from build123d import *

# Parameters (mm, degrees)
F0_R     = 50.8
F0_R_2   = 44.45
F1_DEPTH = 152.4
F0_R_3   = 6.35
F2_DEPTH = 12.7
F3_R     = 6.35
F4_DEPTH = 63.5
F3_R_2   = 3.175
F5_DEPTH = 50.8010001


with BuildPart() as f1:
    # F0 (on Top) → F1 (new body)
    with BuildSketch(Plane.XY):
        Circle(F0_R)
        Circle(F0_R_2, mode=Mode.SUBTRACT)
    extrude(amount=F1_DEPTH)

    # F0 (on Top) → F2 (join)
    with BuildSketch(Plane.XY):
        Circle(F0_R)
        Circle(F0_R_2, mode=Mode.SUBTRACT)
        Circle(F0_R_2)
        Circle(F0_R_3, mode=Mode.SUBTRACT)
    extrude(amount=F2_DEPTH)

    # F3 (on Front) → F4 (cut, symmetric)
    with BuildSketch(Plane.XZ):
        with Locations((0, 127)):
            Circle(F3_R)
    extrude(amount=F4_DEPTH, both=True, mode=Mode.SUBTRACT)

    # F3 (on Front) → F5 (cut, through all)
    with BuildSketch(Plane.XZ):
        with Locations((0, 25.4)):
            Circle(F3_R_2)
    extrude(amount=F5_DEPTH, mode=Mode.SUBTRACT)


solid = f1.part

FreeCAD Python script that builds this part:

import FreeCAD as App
import Part
import Sketcher

V = App.Vector
Q = App.Units.Quantity

doc = App.newDocument("Part")
body = doc.addObject("PartDesign::Body", "Body")

# Sketch on XY plane
sketch1 = body.newObject("Sketcher::SketchObject", "Sketch")
sketch1.AttachmentSupport = (doc.getObject("XY_Plane"), [""])
sketch1.MapMode = "FlatFace"
sketch1.addGeometry([
    Part.Circle(V(0, 0, 0), V(0, 0, 1), 50.8),
    Part.Circle(V(0, 0, 0), V(0, 0, 1), 44.45),
], False)
sketch1.addConstraint([
    Sketcher.Constraint("Coincident", 0, 3, -1, 1),
    Sketcher.Constraint("Coincident", 1, 3, -1, 1),
    Sketcher.Constraint("Diameter", 0, Q("4 in")),
    Sketcher.Constraint("Diameter", 1, Q("3.5 in")),
])
pad1 = body.newObject("PartDesign::Pad", "Pad")
pad1.Profile = sketch1
pad1.Length = Q("6 in")

# Sketch on XY plane
sketch2 = body.newObject("Sketcher::SketchObject", "Sketch001")
sketch2.AttachmentSupport = (doc.getObject("XY_Plane"), [""])
sketch2.MapMode = "FlatFace"
sketch2.addGeometry([
    Part.Circle(V(0, 0, 0), V(0, 0, 1), 50.8),
    Part.Circle(V(0, 0, 0), V(0, 0, 1), 6.35),
], False)
sketch2.addConstraint([
    Sketcher.Constraint("Coincident", 0, 3, -1, 1),
    Sketcher.Constraint("Coincident", 1, 3, -1, 1),
    Sketcher.Constraint("Diameter", 0, Q("4 in")),
    Sketcher.Constraint("Diameter", 1, Q("0.5 in")),
])
pad2 = body.newObject("PartDesign::Pad", "Pad001")
pad2.Profile = sketch2
pad2.Length = Q("0.5 in")

# Sketch on XZ plane
sketch3 = body.newObject("Sketcher::SketchObject", "Sketch002")
sketch3.AttachmentSupport = (doc.getObject("XZ_Plane"), [""])
sketch3.MapMode = "FlatFace"
sketch3.addGeometry(Part.Circle(V(0, 127, 0), V(0, 0, 1), 6.35), False)
sketch3.addConstraint([
    Sketcher.Constraint("PointOnObject", 0, 3, -2),
    Sketcher.Constraint("Diameter", 0, Q("0.5 in")),
    Sketcher.Constraint("DistanceY", -1, 1, 0, 3, Q("5 in")),
])
pocket1 = body.newObject("PartDesign::Pocket", "Pocket")
pocket1.Profile = sketch3
pocket1.Length = Q("5 in")
pocket1.Midplane = True

# Sketch on XZ plane
sketch4 = body.newObject("Sketcher::SketchObject", "Sketch003")
sketch4.AttachmentSupport = (doc.getObject("XZ_Plane"), [""])
sketch4.MapMode = "FlatFace"
sketch4.addGeometry(Part.Circle(V(0, 25.4, 0), V(0, 0, 1), 3.175), False)
sketch4.addConstraint([
    Sketcher.Constraint("PointOnObject", 0, 3, -2),
    Sketcher.Constraint("Diameter", 0, Q("0.25 in")),
    Sketcher.Constraint("DistanceY", -1, 1, 0, 3, Q("1 in")),
])
pocket2 = body.newObject("PartDesign::Pocket", "Pocket001")
pocket2.Profile = sketch4
pocket2.Type = "ThroughAll"
pocket2.Reversed = True

doc.recompute()
